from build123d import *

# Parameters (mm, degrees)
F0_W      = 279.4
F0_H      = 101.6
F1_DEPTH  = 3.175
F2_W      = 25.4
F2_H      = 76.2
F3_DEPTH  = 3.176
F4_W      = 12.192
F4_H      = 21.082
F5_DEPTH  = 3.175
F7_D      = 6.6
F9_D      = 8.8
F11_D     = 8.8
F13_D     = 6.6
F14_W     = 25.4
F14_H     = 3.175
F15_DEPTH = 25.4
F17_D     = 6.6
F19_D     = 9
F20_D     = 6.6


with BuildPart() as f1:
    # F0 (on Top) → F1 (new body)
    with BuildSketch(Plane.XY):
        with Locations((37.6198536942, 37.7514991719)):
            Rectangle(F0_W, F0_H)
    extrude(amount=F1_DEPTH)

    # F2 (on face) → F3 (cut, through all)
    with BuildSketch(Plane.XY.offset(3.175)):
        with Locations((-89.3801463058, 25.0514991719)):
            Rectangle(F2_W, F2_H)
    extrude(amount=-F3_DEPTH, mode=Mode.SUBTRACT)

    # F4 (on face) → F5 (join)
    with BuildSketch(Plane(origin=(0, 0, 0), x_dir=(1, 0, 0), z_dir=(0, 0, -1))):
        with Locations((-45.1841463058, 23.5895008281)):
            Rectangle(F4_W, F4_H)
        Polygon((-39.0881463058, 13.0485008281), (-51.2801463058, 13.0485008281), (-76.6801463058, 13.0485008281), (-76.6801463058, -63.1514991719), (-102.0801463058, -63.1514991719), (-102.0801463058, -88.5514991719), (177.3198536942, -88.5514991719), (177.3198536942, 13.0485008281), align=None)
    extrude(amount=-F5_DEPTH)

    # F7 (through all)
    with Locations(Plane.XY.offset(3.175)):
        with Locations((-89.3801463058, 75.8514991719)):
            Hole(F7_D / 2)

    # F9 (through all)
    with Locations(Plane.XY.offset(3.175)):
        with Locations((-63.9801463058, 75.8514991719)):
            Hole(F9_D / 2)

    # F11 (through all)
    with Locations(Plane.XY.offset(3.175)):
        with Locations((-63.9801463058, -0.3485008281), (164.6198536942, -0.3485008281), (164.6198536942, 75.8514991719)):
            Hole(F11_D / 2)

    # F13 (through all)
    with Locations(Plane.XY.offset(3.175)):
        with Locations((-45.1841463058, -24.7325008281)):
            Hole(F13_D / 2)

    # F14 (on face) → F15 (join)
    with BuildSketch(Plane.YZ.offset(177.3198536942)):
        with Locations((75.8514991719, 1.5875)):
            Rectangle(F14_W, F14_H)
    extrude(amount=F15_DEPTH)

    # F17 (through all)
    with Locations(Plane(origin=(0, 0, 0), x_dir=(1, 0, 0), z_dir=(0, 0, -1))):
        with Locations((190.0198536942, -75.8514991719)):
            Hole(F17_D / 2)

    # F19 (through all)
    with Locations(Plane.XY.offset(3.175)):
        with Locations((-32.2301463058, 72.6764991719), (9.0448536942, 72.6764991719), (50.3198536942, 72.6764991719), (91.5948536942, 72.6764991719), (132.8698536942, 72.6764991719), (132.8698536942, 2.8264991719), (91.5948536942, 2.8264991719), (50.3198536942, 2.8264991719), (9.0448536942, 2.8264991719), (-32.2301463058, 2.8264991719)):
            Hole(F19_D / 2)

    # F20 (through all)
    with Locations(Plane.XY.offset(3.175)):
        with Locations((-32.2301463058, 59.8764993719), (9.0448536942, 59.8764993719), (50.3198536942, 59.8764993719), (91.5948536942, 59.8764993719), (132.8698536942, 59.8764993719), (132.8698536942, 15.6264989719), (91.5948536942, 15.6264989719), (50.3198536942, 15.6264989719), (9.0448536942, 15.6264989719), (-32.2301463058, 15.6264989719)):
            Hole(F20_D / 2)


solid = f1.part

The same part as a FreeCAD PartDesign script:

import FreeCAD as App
import Part
import Sketcher

V = App.Vector
Q = App.Units.Quantity

doc = App.newDocument("Part")
body = doc.addObject("PartDesign::Body", "Body")

# Sketch on XY plane
sketch1 = doc.addObject("Sketcher::SketchObject", "Sketch")
body.addObject(sketch1)
sketch1.AttachmentSupport = (doc.XY_Plane, [""])
sketch1.MapMode = "FlatFace"
sketch1.addGeometry([
    Part.LineSegment(V(-102.080146, 88.551499, 0), V(-102.080146, -13.048501, 0)),
    Part.LineSegment(V(-102.080146, -13.048501, 0), V(177.319854, -13.048501, 0)),
    Part.LineSegment(V(177.319854, -13.048501, 0), V(177.319854, 88.551499, 0)),
    Part.LineSegment(V(177.319854, 88.551499, 0), V(-102.080146, 88.551499, 0)),
], False)
sketch1.addConstraint([
    Sketcher.Constraint("Coincident", 0, 2, 1, 1),
    Sketcher.Constraint("Coincident", 1, 2, 2, 1),
    Sketcher.Constraint("Coincident", 2, 2, 3, 1),
    Sketcher.Constraint("Coincident", 3, 2, 0, 1),
    Sketcher.Constraint("Vertical", 0),
    Sketcher.Constraint("Horizontal", 1),
    Sketcher.Constraint("Vertical", 2),
    Sketcher.Constraint("Horizontal", 3),
    Sketcher.Constraint("DistanceX", 1, 1, 1, 2, Q("11 in")),
    Sketcher.Constraint("DistanceY", 0, 2, 0, 1, Q("4 in")),
    Sketcher.Constraint("DistanceY", 0, 2, -1, 1, Q("13.048501 mm")),
    Sketcher.Constraint("DistanceX", 0, 2, -1, 1, Q("102.080146 mm")),
])
pad1 = doc.addObject("PartDesign::Pad", "Pad")
body.addObject(pad1)
pad1.Profile = sketch1
pad1.Length = Q("0.125 in")

# Sketch on XY plane
sketch2 = doc.addObject("Sketcher::SketchObject", "Sketch001")
body.addObject(sketch2)
sketch2.AttachmentSupport = (doc.XY_Plane, [""])
sketch2.MapMode = "FlatFace"
sketch2.AttachmentOffset = App.Placement(V(0, 0, 0.125 * 25.4), App.Rotation())
sketch2.addGeometry([
    Part.LineSegment(V(-102.080146, 63.151499, 0), V(-102.080146, -13.048501, 0)),
    Part.LineSegment(V(-102.080146, -13.048501, 0), V(-76.680146, -13.048501, 0)),
    Part.LineSegment(V(-76.680146, -13.048501, 0), V(-76.680146, 63.151499, 0)),
    Part.LineSegment(V(-76.680146, 63.151499, 0), V(-102.080146, 63.151499, 0)),
], False)
sketch2.addConstraint([
    Sketcher.Constraint("Coincident", 0, 2, 1, 1),
    Sketcher.Constraint("Coincident", 1, 2, 2, 1),
    Sketcher.Constraint("Coincident", 2, 2, 3, 1),
    Sketcher.Constraint("Coincident", 3, 2, 0, 1),
    Sketcher.Constraint("Vertical", 0),
    Sketcher.Constraint("Horizontal", 1),
    Sketcher.Constraint("Vertical", 2),
    Sketcher.Constraint("Horizontal", 3),
    Sketcher.Constraint("DistanceX", 1, 1, 1, 2, Q("1 in")),
    Sketcher.Constraint("DistanceY", 0, 2, 0, 1, Q("3 in")),
    Sketcher.Constraint("DistanceY", 0, 2, -1, 1, Q("13.048501 mm")),
    Sketcher.Constraint("DistanceX", 0, 2, -1, 1, Q("102.080146 mm")),
])
pocket1 = doc.addObject("PartDesign::Pocket", "Pocket")
body.addObject(pocket1)
pocket1.Profile = sketch2
pocket1.Type = "ThroughAll"

# Sketch on XY plane
sketch3 = doc.addObject("Sketcher::SketchObject", "Sketch002")
body.addObject(sketch3)
sketch3.AttachmentSupport = (doc.XY_Plane, [""])
sketch3.MapMode = "FlatFace"
sketch3.addGeometry([
    Part.LineSegment(V(-51.280146, -34.130501, 0), V(-51.280146, -13.048501, 0)),  # 0
    Part.LineSegment(V(-51.280146, -13.048501, 0), V(-76.680146, -13.048501, 0)),  # 1
    Part.LineSegment(V(-76.680146, -13.048501, 0), V(-76.680146, 63.151499, 0)),  # 2
    Part.LineSegment(V(-76.680146, 63.151499, 0), V(-102.080146, 63.151499, 0)),  # 3
    Part.LineSegment(V(-102.080146, 63.151499, 0), V(-102.080146, 88.551499, 0)),  # 4
    Part.LineSegment(V(-102.080146, 88.551499, 0), V(177.319854, 88.551499, 0)),  # 5
    Part.LineSegment(V(177.319854, 88.551499, 0), V(177.319854, -13.048501, 0)),  # 6
    Part.LineSegment(V(177.319854, -13.048501, 0), V(-39.088146, -13.048501, 0)),  # 7
    Part.LineSegment(V(-39.088146, -13.048501, 0), V(-39.088146, -34.130501, 0)),  # 8
    Part.LineSegment(V(-39.088146, -34.130501, 0), V(-51.280146, -34.130501, 0)),  # 9
], False)
sketch3.addConstraint([
    Sketcher.Constraint("Coincident", 0, 2, 1, 1),
    Sketcher.Constraint("Coincident", 1, 2, 2, 1),
    Sketcher.Constraint("Coincident", 2, 2, 3, 1),
    Sketcher.Constraint("Coincident", 3, 2, 4, 1),
    Sketcher.Constraint("Coincident", 4, 2, 5, 1),
    Sketcher.Constraint("Coincident", 5, 2, 6, 1),
    Sketcher.Constraint("Coincident", 6, 2, 7, 1),
    Sketcher.Constraint("Coincident", 7, 2, 8, 1),
    Sketcher.Constraint("Coincident", 8, 2, 9, 1),
    Sketcher.Constraint("Coincident", 9, 2, 0, 1),
    Sketcher.Constraint("Vertical", 0),
    Sketcher.Constraint("Horizontal", 1),
    Sketcher.Constraint("Vertical", 2),
    Sketcher.Constraint("Horizontal", 3),
    Sketcher.Constraint("Vertical", 4),
    Sketcher.Constraint("Horizontal", 5),
    Sketcher.Constraint("Vertical", 6),
    Sketcher.Constraint("Horizontal", 7),
    Sketcher.Constraint("Vertical", 8),
    Sketcher.Constraint("Horizontal", 9),
    Sketcher.Constraint("Horizontal", 1, 2, 6, 2),
    Sketcher.Constraint("Equal", 1, 3),
    Sketcher.Constraint("Equal", 3, 4),
    Sketcher.Constraint("DistanceX", 1, 2, 1, 1, Q("1 in")),
    Sketcher.Constraint("DistanceX", 5, 1, 5, 2, Q("11 in")),
    Sketcher.Constraint("DistanceY", 2, 1, 2, 2, Q("3 in")),
    Sketcher.Constraint("DistanceX", 7, 2, 7, 1, Q("8.52 in")),
    Sketcher.Constraint("DistanceY", 0, 1, 0, 2, Q("0.83 in")),
    Sketcher.Constraint("DistanceY", 0, 2, -1, 1, Q("13.048501 mm")),
    Sketcher.Constraint("DistanceX", 0, 2, -1, 1, Q("51.280146 mm")),
])
pad2 = doc.addObject("PartDesign::Pad", "Pad001")
body.addObject(pad2)
pad2.Profile = sketch3
pad2.Length = Q("0.125 in")

# Sketch on XY plane
sketch4 = doc.addObject("Sketcher::SketchObject", "Sketch003")
body.addObject(sketch4)
sketch4.AttachmentSupport = (doc.XY_Plane, [""])
sketch4.MapMode = "FlatFace"
sketch4.AttachmentOffset = App.Placement(V(0, 0, 0.125 * 25.4), App.Rotation())
sketch4.addGeometry(Part.Circle(V(-89.380146, 75.851499, 0), V(0, 0, 1), 3.3), False)
sketch4.addConstraint([
    Sketcher.Constraint("Diameter", 0, Q("6.6 mm")),
    Sketcher.Constraint("DistanceY", -1, 1, 0, 3, Q("75.851499 mm")),
    Sketcher.Constraint("DistanceX", 0, 3, -1, 1, Q("89.380146 mm")),
])
doc.recompute()
hole = doc.addObject("PartDesign::Hole", "Hole")
body.addObject(hole)
hole.Profile = sketch4
hole.ThreadType = "None"
hole.Diameter = 6.6
hole.DepthType = "ThroughAll"

# Sketch on XY plane
sketch5 = doc.addObject("Sketcher::SketchObject", "Sketch004")
body.addObject(sketch5)
sketch5.AttachmentSupport = (doc.XY_Plane, [""])
sketch5.MapMode = "FlatFace"
sketch5.AttachmentOffset = App.Placement(V(0, 0, 0.125 * 25.4), App.Rotation())
sketch5.addGeometry(Part.Circle(V(-63.980146, 75.851499, 0), V(0, 0, 1), 4.4), False)
sketch5.addConstraint([
    Sketcher.Constraint("Diameter", 0, Q("8.8 mm")),
    Sketcher.Constraint("DistanceY", -1, 1, 0, 3, Q("75.851499 mm")),
    Sketcher.Constraint("DistanceX", 0, 3, -1, 1, Q("63.980146 mm")),
])
doc.recompute()
hole2 = doc.addObject("PartDesign::Hole", "Hole001")
body.addObject(hole2)
hole2.Profile = sketch5
hole2.ThreadType = "None"
hole2.Diameter = 8.8
hole2.DepthType = "ThroughAll"

# Sketch on XY plane
sketch6 = doc.addObject("Sketcher::SketchObject", "Sketch005")
body.addObject(sketch6)
sketch6.AttachmentSupport = (doc.XY_Plane, [""])
sketch6.MapMode = "FlatFace"
sketch6.AttachmentOffset = App.Placement(V(0, 0, 0.125 * 25.4), App.Rotation())
sketch6.addGeometry([
    Part.Circle(V(-63.980146, -0.348501, 0), V(0, 0, 1), 4.4),
    Part.Circle(V(164.619854, -0.348501, 0), V(0, 0, 1), 4.4),
    Part.Circle(V(164.619854, 75.851499, 0), V(0, 0, 1), 4.4),
], False)
sketch6.addConstraint([
    Sketcher.Constraint("Equal", 0, 1),
    Sketcher.Constraint("Equal", 1, 2),
    Sketcher.Constraint("Horizontal", 0, 3, 1, 3),
    Sketcher.Constraint("Vertical", 1, 3, 2, 3),
    Sketcher.Constraint("DistanceX", 0, 3, 1, 3, Q("9 in")),
    Sketcher.Constraint("DistanceY", 1, 3, 2, 3, Q("3 in")),
    Sketcher.Constraint("Diameter", 0, Q("8.8 mm")),
    Sketcher.Constraint("DistanceY", 0, 3, -1, 1, Q("0.348501 mm")),
    Sketcher.Constraint("DistanceX", 0, 3, -1, 1, Q("63.980146 mm")),
])
doc.recompute()
hole3 = doc.addObject("PartDesign::Hole", "Hole002")
body.addObject(hole3)
hole3.Profile = sketch6
hole3.ThreadType = "None"
hole3.Diameter = 8.8
hole3.DepthType = "ThroughAll"

# Sketch on XY plane
sketch7 = doc.addObject("Sketcher::SketchObject", "Sketch006")
body.addObject(sketch7)
sketch7.AttachmentSupport = (doc.XY_Plane, [""])
sketch7.MapMode = "FlatFace"
sketch7.AttachmentOffset = App.Placement(V(0, 0, 0.125 * 25.4), App.Rotation())
sketch7.addGeometry(Part.Circle(V(-45.184146, -24.732501, 0), V(0, 0, 1), 3.3), False)
sketch7.addConstraint([
    Sketcher.Constraint("Diameter", 0, Q("6.6 mm")),
    Sketcher.Constraint("DistanceY", 0, 3, -1, 1, Q("24.732501 mm")),
    Sketcher.Constraint("DistanceX", 0, 3, -1, 1, Q("45.184146 mm")),
])
doc.recompute()
hole4 = doc.addObject("PartDesign::Hole", "Hole003")
body.addObject(hole4)
hole4.Profile = sketch7
hole4.ThreadType = "None"
hole4.Diameter = 6.6
hole4.DepthType = "ThroughAll"

# Sketch on YZ plane
sketch8 = doc.addObject("Sketcher::SketchObject", "Sketch007")
body.addObject(sketch8)
sketch8.AttachmentSupport = (doc.YZ_Plane, [""])
sketch8.MapMode = "FlatFace"
sketch8.AttachmentOffset = App.Placement(V(0, 0, 177.319854), App.Rotation())
sketch8.addGeometry([
    Part.LineSegment(V(63.151499, 3.175, 0), V(63.151499, 0, 0)),
    Part.LineSegment(V(63.151499, 0, 0), V(88.551499, 0, 0)),
    Part.LineSegment(V(88.551499, 0, 0), V(88.551499, 3.175, 0)),
    Part.LineSegment(V(88.551499, 3.175, 0), V(63.151499, 3.175, 0)),
], False)
sketch8.addConstraint([
    Sketcher.Constraint("Coincident", 0, 2, 1, 1),
    Sketcher.Constraint("Coincident", 1, 2, 2, 1),
    Sketcher.Constraint("Coincident", 2, 2, 3, 1),
    Sketcher.Constraint("Coincident", 3, 2, 0, 1),
    Sketcher.Constraint("Vertical", 0),
    Sketcher.Constraint("Horizontal", 1),
    Sketcher.Constraint("Vertical", 2),
    Sketcher.Constraint("Horizontal", 3),
    Sketcher.Constraint("PointOnObject", 0, 2, -1),
    Sketcher.Constraint("DistanceX", 1, 1, 1, 2, Q("1 in")),
    Sketcher.Constraint("DistanceY", 0, 2, 0, 1, Q("0.125 in")),
    Sketcher.Constraint("DistanceX", -1, 1, 0, 2, Q("63.151499 mm")),
])
pad3 = doc.addObject("PartDesign::Pad", "Pad002")
body.addObject(pad3)
pad3.Profile = sketch8
pad3.Length = Q("1 in")

# Sketch on XY plane
sketch9 = doc.addObject("Sketcher::SketchObject", "Sketch008")
body.addObject(sketch9)
sketch9.AttachmentSupport = (doc.XY_Plane, [""])
sketch9.MapMode = "FlatFace"
sketch9.addGeometry(Part.Circle(V(190.019854, 75.851499, 0), V(0, 0, 1), 3.3), False)
sketch9.addConstraint([
    Sketcher.Constraint("Diameter", 0, Q("6.6 mm")),
    Sketcher.Constraint("DistanceY", -1, 1, 0, 3, Q("75.851499 mm")),
    Sketcher.Constraint("DistanceX", -1, 1, 0, 3, Q("190.019854 mm")),
])
doc.recompute()
hole5 = doc.addObject("PartDesign::Hole", "Hole004")
body.addObject(hole5)
hole5.Profile = sketch9
hole5.ThreadType = "None"
hole5.Diameter = 6.6
hole5.DepthType = "ThroughAll"
hole5.Reversed = True

# Sketch on XY plane
sketch10 = doc.addObject("Sketcher::SketchObject", "Sketch009")
body.addObject(sketch10)
sketch10.AttachmentSupport = (doc.XY_Plane, [""])
sketch10.MapMode = "FlatFace"
sketch10.AttachmentOffset = App.Placement(V(0, 0, 0.125 * 25.4), App.Rotation())
sketch10.addGeometry([
    Part.Circle(V(-32.230146, 72.676499, 0), V(0, 0, 1), 4.5),  # 0
    Part.Circle(V(9.044854, 72.676499, 0), V(0, 0, 1), 4.5),  # 1
    Part.Circle(V(50.319854, 72.676499, 0), V(0, 0, 1), 4.5),  # 2
    Part.Circle(V(91.594854, 72.676499, 0), V(0, 0, 1), 4.5),  # 3
    Part.Circle(V(132.869854, 72.676499, 0), V(0, 0, 1), 4.5),  # 4
    Part.Circle(V(132.869854, 2.826499, 0), V(0, 0, 1), 4.5),  # 5
    Part.Circle(V(91.594854, 2.826499, 0), V(0, 0, 1), 4.5),  # 6
    Part.Circle(V(50.319854, 2.826499, 0), V(0, 0, 1), 4.5),  # 7
    Part.Circle(V(9.044854, 2.826499, 0), V(0, 0, 1), 4.5),  # 8
    Part.Circle(V(-32.230146, 2.826499, 0), V(0, 0, 1), 4.5),  # 9
], False)
sketch10.addConstraint([
    Sketcher.Constraint("Equal", 0, 1),
    Sketcher.Constraint("Equal", 1, 2),
    Sketcher.Constraint("Equal", 2, 3),
    Sketcher.Constraint("Equal", 3, 4),
    Sketcher.Constraint("Equal", 4, 5),
    Sketcher.Constraint("Equal", 5, 6),
    Sketcher.Constraint("Equal", 6, 7),
    Sketcher.Constraint("Equal", 7, 8),
    Sketcher.Constraint("Equal", 8, 9),
    Sketcher.Constraint("Horizontal", 0, 3, 1, 3),
    Sketcher.Constraint("Horizontal", 1, 3, 2, 3),
    Sketcher.Constraint("Horizontal", 2, 3, 3, 3),
    Sketcher.Constraint("Horizontal", 3, 3, 4, 3),
    Sketcher.Constraint("Horizontal", 5, 3, 6, 3),
    Sketcher.Constraint("Horizontal", 6, 3, 7, 3),
    Sketcher.Constraint("Horizontal", 7, 3, 8, 3),
    Sketcher.Constraint("Horizontal", 8, 3, 9, 3),
    Sketcher.Constraint("Vertical", 4, 3, 5, 3),
    Sketcher.Constraint("Vertical", 3, 3, 6, 3),
    Sketcher.Constraint("Vertical", 2, 3, 7, 3),
    Sketcher.Constraint("Vertical", 1, 3, 8, 3),
    Sketcher.Constraint("Vertical", 0, 3, 9, 3),
    Sketcher.Constraint("DistanceX", 0, 3, 4, 3, Q("6.5 in")),
    Sketcher.Constraint("Diameter", 0, Q("9 mm")),
    Sketcher.Constraint("DistanceX", 0, 3, 2, 3, Q("3.25 in")),
    Sketcher.Constraint("DistanceX", 1, 3, 3, 3, Q("3.25 in")),
    Sketcher.Constraint("DistanceY", 5, 3, 4, 3, Q("2.75 in")),
    Sketcher.Constraint("DistanceX", 0, 3, 1, 3, Q("1.625 in")),
    Sketcher.Constraint("DistanceY", -1, 1, 0, 3, Q("72.676499 mm")),
    Sketcher.Constraint("DistanceX", 0, 3, -1, 1, Q("32.230146 mm")),
])
doc.recompute()
hole6 = doc.addObject("PartDesign::Hole", "Hole005")
body.addObject(hole6)
hole6.Profile = sketch10
hole6.ThreadType = "None"
hole6.Diameter = 9
hole6.DepthType = "ThroughAll"

# Sketch on XY plane
sketch11 = doc.addObject("Sketcher::SketchObject", "Sketch010")
body.addObject(sketch11)
sketch11.AttachmentSupport = (doc.XY_Plane, [""])
sketch11.MapMode = "FlatFace"
sketch11.AttachmentOffset = App.Placement(V(0, 0, 0.125 * 25.4), App.Rotation())
sketch11.addGeometry([
    Part.Circle(V(-32.230146, 59.876499, 0), V(0, 0, 1), 3.3),  # 0
    Part.Circle(V(9.044854, 59.876499, 0), V(0, 0, 1), 3.3),  # 1
    Part.Circle(V(50.319854, 59.876499, 0), V(0, 0, 1), 3.3),  # 2
    Part.Circle(V(91.594854, 59.876499, 0), V(0, 0, 1), 3.3),  # 3
    Part.Circle(V(132.869854, 59.876499, 0), V(0, 0, 1), 3.3),  # 4
    Part.Circle(V(132.869854, 15.626499, 0), V(0, 0, 1), 3.3),  # 5
    Part.Circle(V(91.594854, 15.626499, 0), V(0, 0, 1), 3.3),  # 6
    Part.Circle(V(50.319854, 15.626499, 0), V(0, 0, 1), 3.3),  # 7
    Part.Circle(V(9.044854, 15.626499, 0), V(0, 0, 1), 3.3),  # 8
    Part.Circle(V(-32.230146, 15.626499, 0), V(0, 0, 1), 3.3),  # 9
], False)
sketch11.addConstraint([
    Sketcher.Constraint("Equal", 0, 1),
    Sketcher.Constraint("Equal", 1, 2),
    Sketcher.Constraint("Equal", 2, 3),
    Sketcher.Constraint("Equal", 3, 4),
    Sketcher.Constraint("Equal", 4, 5),
    Sketcher.Constraint("Equal", 5, 6),
    Sketcher.Constraint("Equal", 6, 7),
    Sketcher.Constraint("Equal", 7, 8),
    Sketcher.Constraint("Equal", 8, 9),
    Sketcher.Constraint("Horizontal", 0, 3, 1, 3),
    Sketcher.Constraint("Horizontal", 1, 3, 2, 3),
    Sketcher.Constraint("Horizontal", 2, 3, 3, 3),
    Sketcher.Constraint("Horizontal", 3, 3, 4, 3),
    Sketcher.Constraint("Horizontal", 5, 3, 6, 3),
    Sketcher.Constraint("Horizontal", 6, 3, 7, 3),
    Sketcher.Constraint("Horizontal", 7, 3, 8, 3),
    Sketcher.Constraint("Horizontal", 8, 3, 9, 3),
    Sketcher.Constraint("Vertical", 4, 3, 5, 3),
    Sketcher.Constraint("Vertical", 3, 3, 6, 3),
    Sketcher.Constraint("Vertical", 2, 3, 7, 3),
    Sketcher.Constraint("Vertical", 1, 3, 8, 3),
    Sketcher.Constraint("Vertical", 0, 3, 9, 3),
    Sketcher.Constraint("DistanceX", 0, 3, 4, 3, Q("6.5 in")),
    Sketcher.Constraint("Diameter", 0, Q("6.6 mm")),
    Sketcher.Constraint("DistanceX", 0, 3, 2, 3, Q("3.25 in")),
    Sketcher.Constraint("DistanceX", 1, 3, 3, 3, Q("3.25 in")),
    Sketcher.Constraint("DistanceX", 0, 3, 1, 3, Q("1.625 in")),
    Sketcher.Constraint("DistanceY", -1, 1, 0, 3, Q("59.876499 mm")),
    Sketcher.Constraint("DistanceY", -1, 1, 5, 3, Q("15.626499 mm")),
    Sketcher.Constraint("DistanceX", 0, 3, -1, 1, Q("32.230146 mm")),
])
doc.recompute()
hole7 = doc.addObject("PartDesign::Hole", "Hole006")
body.addObject(hole7)
hole7.Profile = sketch11
hole7.ThreadType = "None"
hole7.Diameter = 6.6
hole7.DepthType = "ThroughAll"

doc.recompute()
